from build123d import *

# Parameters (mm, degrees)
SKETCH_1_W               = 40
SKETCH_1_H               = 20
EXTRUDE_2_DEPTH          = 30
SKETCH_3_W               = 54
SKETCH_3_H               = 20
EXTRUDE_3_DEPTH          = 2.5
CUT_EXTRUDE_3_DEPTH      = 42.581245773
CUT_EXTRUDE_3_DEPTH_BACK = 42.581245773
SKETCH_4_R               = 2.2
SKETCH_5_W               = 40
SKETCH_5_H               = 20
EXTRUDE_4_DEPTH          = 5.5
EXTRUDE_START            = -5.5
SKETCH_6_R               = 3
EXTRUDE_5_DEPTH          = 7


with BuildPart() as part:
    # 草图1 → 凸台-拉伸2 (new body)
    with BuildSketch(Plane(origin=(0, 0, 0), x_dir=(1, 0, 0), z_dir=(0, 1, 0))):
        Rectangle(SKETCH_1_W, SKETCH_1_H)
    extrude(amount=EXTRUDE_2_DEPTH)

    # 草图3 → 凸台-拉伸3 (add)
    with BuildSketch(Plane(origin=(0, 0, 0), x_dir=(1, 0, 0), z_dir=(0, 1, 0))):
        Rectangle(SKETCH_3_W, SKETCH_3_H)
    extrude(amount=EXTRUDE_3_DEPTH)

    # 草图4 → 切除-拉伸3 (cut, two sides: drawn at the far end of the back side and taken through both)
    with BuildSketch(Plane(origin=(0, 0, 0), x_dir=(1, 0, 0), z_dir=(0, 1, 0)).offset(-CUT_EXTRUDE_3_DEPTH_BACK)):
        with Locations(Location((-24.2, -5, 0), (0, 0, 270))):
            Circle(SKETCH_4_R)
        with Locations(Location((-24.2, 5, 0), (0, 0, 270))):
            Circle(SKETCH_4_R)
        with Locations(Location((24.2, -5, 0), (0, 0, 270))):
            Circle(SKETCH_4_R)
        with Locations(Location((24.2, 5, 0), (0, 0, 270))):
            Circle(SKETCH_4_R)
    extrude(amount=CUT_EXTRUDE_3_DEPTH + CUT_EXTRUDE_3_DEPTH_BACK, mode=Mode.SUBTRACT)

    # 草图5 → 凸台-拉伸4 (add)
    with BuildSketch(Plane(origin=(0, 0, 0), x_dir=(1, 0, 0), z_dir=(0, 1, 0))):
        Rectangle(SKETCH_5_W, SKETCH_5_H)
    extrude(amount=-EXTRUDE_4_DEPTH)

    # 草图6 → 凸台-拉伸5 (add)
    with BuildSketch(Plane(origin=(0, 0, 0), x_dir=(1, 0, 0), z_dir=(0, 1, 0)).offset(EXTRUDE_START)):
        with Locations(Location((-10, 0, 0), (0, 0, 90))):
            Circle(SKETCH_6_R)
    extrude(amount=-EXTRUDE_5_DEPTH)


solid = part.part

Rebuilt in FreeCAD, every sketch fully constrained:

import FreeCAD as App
import Part
import Sketcher

V = App.Vector
Q = App.Units.Quantity

doc = App.newDocument("Part")
body = doc.addObject("PartDesign::Body", "Body")

# Sketch on XZ plane
sketch1 = doc.addObject("Sketcher::SketchObject", "Sketch")
body.addObject(sketch1)
sketch1.AttachmentSupport = (doc.XZ_Plane, [""])
sketch1.MapMode = "FlatFace"
sketch1.addGeometry([
    Part.LineSegment(V(-20, -10, 0), V(-20, 10, 0)),
    Part.LineSegment(V(-20, 10, 0), V(20, 10, 0)),
    Part.LineSegment(V(20, 10, 0), V(20, -10, 0)),
    Part.LineSegment(V(20, -10, 0), V(-20, -10, 0)),
], False)
sketch1.addConstraint([
    Sketcher.Constraint("Coincident", 0, 2, 1, 1),
    Sketcher.Constraint("Coincident", 1, 2, 2, 1),
    Sketcher.Constraint("Coincident", 2, 2, 3, 1),
    Sketcher.Constraint("Coincident", 3, 2, 0, 1),
    Sketcher.Constraint("Vertical", 0),
    Sketcher.Constraint("Horizontal", 1),
    Sketcher.Constraint("Vertical", 2),
    Sketcher.Constraint("Horizontal", 3),
    Sketcher.Constraint("Symmetric", 0, 2, 2, 2, -1, 1),
    Sketcher.Constraint("DistanceX", 1, 1, 1, 2, Q("40 mm")),
    Sketcher.Constraint("DistanceY", 0, 1, 0, 2, Q("20 mm")),
])
pad1 = doc.addObject("PartDesign::Pad", "Pad")
body.addObject(pad1)
pad1.Profile = sketch1
pad1.Length = 30
pad1.Reversed = True

# Sketch on XZ plane
sketch2 = doc.addObject("Sketcher::SketchObject", "Sketch001")
body.addObject(sketch2)
sketch2.AttachmentSupport = (doc.XZ_Plane, [""])
sketch2.MapMode = "FlatFace"
sketch2.addGeometry([
    Part.LineSegment(V(-27, -10, 0), V(-27, 10, 0)),
    Part.LineSegment(V(-27, 10, 0), V(27, 10, 0)),
    Part.LineSegment(V(27, 10, 0), V(27, -10, 0)),
    Part.LineSegment(V(27, -10, 0), V(-27, -10, 0)),
], False)
sketch2.addConstraint([
    Sketcher.Constraint("Coincident", 0, 2, 1, 1),
    Sketcher.Constraint("Coincident", 1, 2, 2, 1),
    Sketcher.Constraint("Coincident", 2, 2, 3, 1),
    Sketcher.Constraint("Coincident", 3, 2, 0, 1),
    Sketcher.Constraint("Vertical", 0),
    Sketcher.Constraint("Horizontal", 1),
    Sketcher.Constraint("Vertical", 2),
    Sketcher.Constraint("Horizontal", 3),
    Sketcher.Constraint("Symmetric", 0, 2, 2, 2, -1, 1),
    Sketcher.Constraint("DistanceX", 1, 1, 1, 2, Q("54 mm")),
    Sketcher.Constraint("DistanceY", 0, 1, 0, 2, Q("20 mm")),
])
pad2 = doc.addObject("PartDesign::Pad", "Pad001")
body.addObject(pad2)
pad2.Profile = sketch2
pad2.Length = 2.5
pad2.Reversed = True

# Sketch on XZ plane
sketch3 = doc.addObject("Sketcher::SketchObject", "Sketch002")
body.addObject(sketch3)
sketch3.AttachmentSupport = (doc.XZ_Plane, [""])
sketch3.MapMode = "FlatFace"
sketch3.addGeometry([
    Part.Circle(V(-24.2, 5, 0), V(0, 0, 1), 2.2),
    Part.Circle(V(-24.2, -5, 0), V(0, 0, 1), 2.2),
    Part.Circle(V(24.2, 5, 0), V(0, 0, 1), 2.2),
    Part.Circle(V(24.2, -5, 0), V(0, 0, 1), 2.2),
], False)
sketch3.addConstraint([
    Sketcher.Constraint("Equal", 0, 1),
    Sketcher.Constraint("Equal", 1, 2),
    Sketcher.Constraint("Equal", 2, 3),
    Sketcher.Constraint("Symmetric", 1, 3, 2, 3, -1, 1),
    Sketcher.Constraint("Symmetric", 0, 3, 3, 3, -1, 1),
    Sketcher.Constraint("Symmetric", 0, 3, 2, 3, -2),
    Sketcher.Constraint("Diameter", 0, Q("4.4 mm")),
    Sketcher.Constraint("DistanceY", -1, 1, 0, 3, Q("5 mm")),
    Sketcher.Constraint("DistanceX", 0, 3, -1, 1, Q("24.2 mm")),
])
pocket1 = doc.addObject("PartDesign::Pocket", "Pocket")
body.addObject(pocket1)
pocket1.Profile = sketch3
pocket1.Type = "ThroughAll"
pocket1.Midplane = True

# Sketch on XZ plane
sketch4 = doc.addObject("Sketcher::SketchObject", "Sketch003")
body.addObject(sketch4)
sketch4.AttachmentSupport = (doc.XZ_Plane, [""])
sketch4.MapMode = "FlatFace"
sketch4.addGeometry([
    Part.LineSegment(V(-20, -10, 0), V(-20, 10, 0)),
    Part.LineSegment(V(-20, 10, 0), V(20, 10, 0)),
    Part.LineSegment(V(20, 10, 0), V(20, -10, 0)),
    Part.LineSegment(V(20, -10, 0), V(-20, -10, 0)),
], False)
sketch4.addConstraint([
    Sketcher.Constraint("Coincident", 0, 2, 1, 1),
    Sketcher.Constraint("Coincident", 1, 2, 2, 1),
    Sketcher.Constraint("Coincident", 2, 2, 3, 1),
    Sketcher.Constraint("Coincident", 3, 2, 0, 1),
    Sketcher.Constraint("Vertical", 0),
    Sketcher.Constraint("Horizontal", 1),
    Sketcher.Constraint("Vertical", 2),
    Sketcher.Constraint("Horizontal", 3),
    Sketcher.Constraint("Symmetric", 0, 2, 2, 2, -1, 1),
    Sketcher.Constraint("DistanceX", 1, 1, 1, 2, Q("40 mm")),
    Sketcher.Constraint("DistanceY", 0, 1, 0, 2, Q("20 mm")),
])
pad3 = doc.addObject("PartDesign::Pad", "Pad002")
body.addObject(pad3)
pad3.Profile = sketch4
pad3.Length = 5.5

# Sketch on XZ plane
sketch5 = doc.addObject("Sketcher::SketchObject", "Sketch004")
body.addObject(sketch5)
sketch5.AttachmentSupport = (doc.XZ_Plane, [""])
sketch5.MapMode = "FlatFace"
sketch5.AttachmentOffset = App.Placement(V(0, 0, 5.5), App.Rotation())
sketch5.addGeometry(Part.Circle(V(-10, 0, 0), V(0, 0, 1), 3), False)
sketch5.addConstraint([
    Sketcher.Constraint("PointOnObject", 0, 3, -1),
    Sketcher.Constraint("Diameter", 0, Q("6 mm")),
    Sketcher.Constraint("DistanceX", 0, 3, -1, 1, Q("10 mm")),
])
pad4 = doc.addObject("PartDesign::Pad", "Pad003")
body.addObject(pad4)
pad4.Profile = sketch5
pad4.Length = 7

doc.recompute()
